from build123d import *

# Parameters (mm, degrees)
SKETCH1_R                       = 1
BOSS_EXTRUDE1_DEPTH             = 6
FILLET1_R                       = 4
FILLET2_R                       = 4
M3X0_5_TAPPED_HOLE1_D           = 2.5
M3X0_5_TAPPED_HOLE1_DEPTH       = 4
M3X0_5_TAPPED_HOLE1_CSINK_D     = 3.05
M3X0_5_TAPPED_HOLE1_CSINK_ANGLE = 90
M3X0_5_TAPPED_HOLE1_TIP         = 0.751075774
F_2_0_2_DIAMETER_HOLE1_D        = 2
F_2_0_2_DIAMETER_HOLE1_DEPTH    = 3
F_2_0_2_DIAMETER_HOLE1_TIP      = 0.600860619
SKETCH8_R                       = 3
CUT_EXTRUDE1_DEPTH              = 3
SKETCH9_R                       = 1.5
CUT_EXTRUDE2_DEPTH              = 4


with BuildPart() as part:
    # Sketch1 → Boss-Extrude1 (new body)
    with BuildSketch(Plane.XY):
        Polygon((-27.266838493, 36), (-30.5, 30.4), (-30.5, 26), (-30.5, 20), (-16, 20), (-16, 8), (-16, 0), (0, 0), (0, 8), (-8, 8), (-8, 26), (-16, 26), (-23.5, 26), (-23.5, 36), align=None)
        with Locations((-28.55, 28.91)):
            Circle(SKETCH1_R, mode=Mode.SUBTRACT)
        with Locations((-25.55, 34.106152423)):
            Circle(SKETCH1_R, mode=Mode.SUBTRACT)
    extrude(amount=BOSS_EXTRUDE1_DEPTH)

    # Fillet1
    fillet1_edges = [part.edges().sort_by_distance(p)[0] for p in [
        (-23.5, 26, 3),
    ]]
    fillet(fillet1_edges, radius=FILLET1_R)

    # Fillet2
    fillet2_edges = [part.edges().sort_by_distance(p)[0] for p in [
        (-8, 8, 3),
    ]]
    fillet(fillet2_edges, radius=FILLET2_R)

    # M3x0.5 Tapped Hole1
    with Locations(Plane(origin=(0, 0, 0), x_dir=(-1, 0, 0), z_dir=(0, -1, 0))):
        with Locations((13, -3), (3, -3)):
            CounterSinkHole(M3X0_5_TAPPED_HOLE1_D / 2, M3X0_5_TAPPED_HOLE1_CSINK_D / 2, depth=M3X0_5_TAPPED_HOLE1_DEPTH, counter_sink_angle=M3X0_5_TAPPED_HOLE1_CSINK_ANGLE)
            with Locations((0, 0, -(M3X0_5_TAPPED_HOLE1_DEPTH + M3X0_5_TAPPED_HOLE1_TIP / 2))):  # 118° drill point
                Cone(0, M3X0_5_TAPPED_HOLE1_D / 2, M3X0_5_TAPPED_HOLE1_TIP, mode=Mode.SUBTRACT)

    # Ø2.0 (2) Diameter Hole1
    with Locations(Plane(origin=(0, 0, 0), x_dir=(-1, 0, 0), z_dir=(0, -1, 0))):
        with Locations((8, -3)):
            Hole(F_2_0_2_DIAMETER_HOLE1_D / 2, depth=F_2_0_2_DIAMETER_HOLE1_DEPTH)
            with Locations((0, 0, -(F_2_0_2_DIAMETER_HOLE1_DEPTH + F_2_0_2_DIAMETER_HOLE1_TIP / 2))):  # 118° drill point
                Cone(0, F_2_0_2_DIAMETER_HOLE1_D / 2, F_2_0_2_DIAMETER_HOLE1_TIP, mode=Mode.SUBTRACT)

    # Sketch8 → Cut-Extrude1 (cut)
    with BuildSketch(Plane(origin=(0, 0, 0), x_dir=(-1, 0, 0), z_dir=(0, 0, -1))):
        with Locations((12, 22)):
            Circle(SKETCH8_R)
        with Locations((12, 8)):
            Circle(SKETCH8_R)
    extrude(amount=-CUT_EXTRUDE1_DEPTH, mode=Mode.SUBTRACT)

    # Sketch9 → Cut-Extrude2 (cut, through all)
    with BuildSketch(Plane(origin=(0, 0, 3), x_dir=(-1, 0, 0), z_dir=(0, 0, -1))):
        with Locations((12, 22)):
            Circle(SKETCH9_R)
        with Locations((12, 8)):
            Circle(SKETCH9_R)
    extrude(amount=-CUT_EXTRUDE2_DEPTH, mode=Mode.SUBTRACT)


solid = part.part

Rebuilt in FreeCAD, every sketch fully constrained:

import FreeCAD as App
import Part
import Sketcher
from FreeCAD import Vector
Q = App.Units.Quantity


def edges_at(feature, points):
    """Names of the edges that pass closest to the given points."""
    edges = feature.Shape.Edges
    near = lambda p: min(range(len(edges)), key=lambda i: edges[i].distToShape(Part.Vertex(*p))[0])
    return sorted({f"Edge{near(p) + 1}" for p in points})

doc = App.newDocument("Part")
body = doc.addObject("PartDesign::Body", "Body")

sketch1 = body.newObject("Sketcher::SketchObject", "Sketch")
sketch1.AttachmentSupport = (doc.getObject("XY_Plane"), [""])
sketch1.MapMode = "FlatFace"
sketch1.addGeometry(Part.LineSegment(Vector(-27.266838, 36, 0), Vector(-30.5, 30.4, 0)), False)
sketch1.addGeometry(Part.LineSegment(Vector(-30.5, 30.4, 0), Vector(-30.5, 20, 0)), False)
sketch1.addGeometry(Part.LineSegment(Vector(-30.5, 20, 0), Vector(-16, 20, 0)), False)
sketch1.addGeometry(Part.LineSegment(Vector(-16, 20, 0), Vector(-16, 0, 0)), False)
sketch1.addGeometry(Part.LineSegment(Vector(-16, 0, 0), Vector(0, 0, 0)), False)
sketch1.addGeometry(Part.LineSegment(Vector(0, 0, 0), Vector(0, 8, 0)), False)
sketch1.addGeometry(Part.LineSegment(Vector(0, 8, 0), Vector(-8, 8, 0)), False)
sketch1.addGeometry(Part.LineSegment(Vector(-8, 8, 0), Vector(-8, 26, 0)), False)
sketch1.addGeometry(Part.LineSegment(Vector(-8, 26, 0), Vector(-23.5, 26, 0)), False)
sketch1.addGeometry(Part.LineSegment(Vector(-23.5, 26, 0), Vector(-23.5, 36, 0)), False)
sketch1.addGeometry(Part.LineSegment(Vector(-23.5, 36, 0), Vector(-27.266838, 36, 0)), False)
sketch1.addGeometry(Part.Circle(Vector(-28.55, 28.91, 0), Vector(0, 0, 1), 1), False)
sketch1.addGeometry(Part.Circle(Vector(-25.55, 34.106152, 0), Vector(0, 0, 1), 1), False)
sketch1.addConstraint(Sketcher.Constraint("Coincident", 0, 2, 1, 1))
sketch1.addConstraint(Sketcher.Constraint("Coincident", 1, 2, 2, 1))
sketch1.addConstraint(Sketcher.Constraint("Coincident", 2, 2, 3, 1))
sketch1.addConstraint(Sketcher.Constraint("Coincident", 3, 2, 4, 1))
sketch1.addConstraint(Sketcher.Constraint("Coincident", 4, 2, 5, 1))
sketch1.addConstraint(Sketcher.Constraint("Coincident", 5, 2, 6, 1))
sketch1.addConstraint(Sketcher.Constraint("Coincident", 6, 2, 7, 1))
sketch1.addConstraint(Sketcher.Constraint("Coincident", 7, 2, 8, 1))
sketch1.addConstraint(Sketcher.Constraint("Coincident", 8, 2, 9, 1))
sketch1.addConstraint(Sketcher.Constraint("Coincident", 9, 2, 10, 1))
sketch1.addConstraint(Sketcher.Constraint("Coincident", 10, 2, 0, 1))
sketch1.addConstraint(Sketcher.Constraint("Vertical", 1))
sketch1.addConstraint(Sketcher.Constraint("Horizontal", 2))
sketch1.addConstraint(Sketcher.Constraint("Vertical", 3))
sketch1.addConstraint(Sketcher.Constraint("Horizontal", 4))
sketch1.addConstraint(Sketcher.Constraint("Vertical", 5))
sketch1.addConstraint(Sketcher.Constraint("Horizontal", 6))
sketch1.addConstraint(Sketcher.Constraint("Vertical", 7))
sketch1.addConstraint(Sketcher.Constraint("Horizontal", 8))
sketch1.addConstraint(Sketcher.Constraint("Vertical", 9))
sketch1.addConstraint(Sketcher.Constraint("Horizontal", 10))
sketch1.addConstraint(Sketcher.Constraint("Coincident", 4, 2, -1, 1))
sketch1.addConstraint(Sketcher.Constraint("Equal", 11, 12))
sketch1.addConstraint(Sketcher.Constraint("Equal", 6, 5))
sketch1.addConstraint(Sketcher.Constraint("Diameter", 11, 2.0))
sketch1.addConstraint(Sketcher.Constraint("DistanceX", 4, 1, 4, 2, 16.0))
sketch1.addConstraint(Sketcher.Constraint("DistanceX", 6, 2, 6, 1, 8.0))
sketch1.addConstraint(Sketcher.Constraint("DistanceY", 3, 2, 3, 1, 20.0))
sketch1.addConstraint(Sketcher.Constraint("DistanceY", 7, 1, 7, 2, 18.0))
sketch1.addConstraint(Sketcher.Constraint("DistanceY", 9, 1, 9, 2, 10.0))
sketch1.addConstraint(Sketcher.Constraint("Angle", 0, Q("-120 deg")))
sketch1.addConstraint(Sketcher.Constraint("DistanceX", 2, 1, 2, 2, 14.5))
sketch1.addConstraint(Sketcher.Constraint("DistanceX", 8, 2, 8, 1, 15.5))
sketch1.addConstraint(Sketcher.Constraint("DistanceY", 1, 2, 1, 1, 10.4))
sketch1.addConstraint(Sketcher.Constraint("DistanceX", 11, 3, 12, 3, 3.0))
sketch1.addConstraint(Sketcher.Constraint("DistanceX", 11, 3, -1, 1, 28.55))
sketch1.addConstraint(Sketcher.Constraint("DistanceY", -1, 1, 11, 3, 28.91))
sketch1.addConstraint(Sketcher.Constraint("DistanceY", -1, 1, 12, 3, 34.106152))
pad1 = body.newObject("PartDesign::Pad", "Pad")
pad1.Profile = sketch1
pad1.Length = 6
doc.recompute()

fillet = body.newObject("PartDesign::Fillet", "Fillet")
fillet.Base = (pad1, edges_at(pad1, [(-23.5, 26, 3)]))
fillet.Radius = 4
doc.recompute()

fillet2 = body.newObject("PartDesign::Fillet", "Fillet001")
fillet2.Base = (fillet, edges_at(fillet, [(-8, 8, 3)]))
fillet2.Radius = 4

sketch2 = body.newObject("Sketcher::SketchObject", "Sketch001")
sketch2.AttachmentSupport = (doc.getObject("XZ_Plane"), [""])
sketch2.MapMode = "FlatFace"
sketch2.addGeometry(Part.Circle(Vector(-13, 3, 0), Vector(0, 0, 1), 1.25), False)
sketch2.addGeometry(Part.Circle(Vector(-3, 3, 0), Vector(0, 0, 1), 1.25), False)
sketch2.addConstraint(Sketcher.Constraint("Equal", 0, 1))
sketch2.addConstraint(Sketcher.Constraint("Horizontal", 0, 3, 1, 3))
sketch2.addConstraint(Sketcher.Constraint("Diameter", 0, 2.5))
sketch2.addConstraint(Sketcher.Constraint("DistanceX", 0, 3, -1, 1, 13.0))
sketch2.addConstraint(Sketcher.Constraint("DistanceY", -1, 1, 0, 3, 3.0))
sketch2.addConstraint(Sketcher.Constraint("DistanceX", 1, 3, -1, 1, 3.0))
doc.recompute()
hole = body.newObject("PartDesign::Hole", "Hole")
hole.Profile = sketch2
hole.ThreadType = "None"
hole.Diameter = 2.5
hole.DepthType = "Dimension"
hole.Depth = 4
hole.DrillPoint = "Angled"
hole.DrillPointAngle = 118
hole.HoleCutType = "Countersink"
hole.HoleCutDiameter = 3.05
hole.HoleCutCountersinkAngle = 90

sketch3 = body.newObject("Sketcher::SketchObject", "Sketch002")
sketch3.AttachmentSupport = (doc.getObject("XZ_Plane"), [""])
sketch3.MapMode = "FlatFace"
sketch3.addGeometry(Part.Circle(Vector(-8, 3, 0), Vector(0, 0, 1), 1), False)
sketch3.addConstraint(Sketcher.Constraint("Diameter", 0, 2.0))
sketch3.addConstraint(Sketcher.Constraint("DistanceX", 0, 3, -1, 1, 8.0))
sketch3.addConstraint(Sketcher.Constraint("DistanceY", -1, 1, 0, 3, 3.0))
doc.recompute()
hole2 = body.newObject("PartDesign::Hole", "Hole001")
hole2.Profile = sketch3
hole2.ThreadType = "None"
hole2.Diameter = 2
hole2.DepthType = "Dimension"
hole2.Depth = 3
hole2.DrillPoint = "Angled"
hole2.DrillPointAngle = 118

sketch4 = body.newObject("Sketcher::SketchObject", "Sketch003")
sketch4.AttachmentSupport = (doc.getObject("XY_Plane"), [""])
sketch4.MapMode = "FlatFace"
sketch4.addGeometry(Part.Circle(Vector(-12, 22, 0), Vector(0, 0, 1), 3), False)
sketch4.addGeometry(Part.Circle(Vector(-12, 8, 0), Vector(0, 0, 1), 3), False)
sketch4.addConstraint(Sketcher.Constraint("Equal", 0, 1))
sketch4.addConstraint(Sketcher.Constraint("Vertical", 0, 3, 1, 3))
sketch4.addConstraint(Sketcher.Constraint("Diameter", 0, 6.0))
sketch4.addConstraint(Sketcher.Constraint("DistanceX", 0, 3, -1, 1, 12.0))
sketch4.addConstraint(Sketcher.Constraint("DistanceY", -1, 1, 0, 3, 22.0))
sketch4.addConstraint(Sketcher.Constraint("DistanceY", -1, 1, 1, 3, 8.0))
pocket1 = body.newObject("PartDesign::Pocket", "Pocket")
pocket1.Profile = sketch4
pocket1.Length = 3
pocket1.Reversed = True

sketch5 = body.newObject("Sketcher::SketchObject", "Sketch004")
sketch5.AttachmentSupport = (doc.getObject("XY_Plane"), [""])
sketch5.MapMode = "FlatFace"
sketch5.AttachmentOffset = App.Placement(Vector(0, 0, 3), App.Rotation())
sketch5.addGeometry(Part.Circle(Vector(-12, 22, 0), Vector(0, 0, 1), 1.5), False)
sketch5.addGeometry(Part.Circle(Vector(-12, 8, 0), Vector(0, 0, 1), 1.5), False)
sketch5.addConstraint(Sketcher.Constraint("Equal", 0, 1))
sketch5.addConstraint(Sketcher.Constraint("Vertical", 0, 3, 1, 3))
sketch5.addConstraint(Sketcher.Constraint("Diameter", 0, 3.0))
sketch5.addConstraint(Sketcher.Constraint("DistanceX", 0, 3, -1, 1, 12.0))
sketch5.addConstraint(Sketcher.Constraint("DistanceY", -1, 1, 0, 3, 22.0))
sketch5.addConstraint(Sketcher.Constraint("DistanceY", -1, 1, 1, 3, 8.0))
pocket2 = body.newObject("PartDesign::Pocket", "Pocket001")
pocket2.Profile = sketch5
pocket2.Type = "ThroughAll"
pocket2.Reversed = True

doc.recompute()
